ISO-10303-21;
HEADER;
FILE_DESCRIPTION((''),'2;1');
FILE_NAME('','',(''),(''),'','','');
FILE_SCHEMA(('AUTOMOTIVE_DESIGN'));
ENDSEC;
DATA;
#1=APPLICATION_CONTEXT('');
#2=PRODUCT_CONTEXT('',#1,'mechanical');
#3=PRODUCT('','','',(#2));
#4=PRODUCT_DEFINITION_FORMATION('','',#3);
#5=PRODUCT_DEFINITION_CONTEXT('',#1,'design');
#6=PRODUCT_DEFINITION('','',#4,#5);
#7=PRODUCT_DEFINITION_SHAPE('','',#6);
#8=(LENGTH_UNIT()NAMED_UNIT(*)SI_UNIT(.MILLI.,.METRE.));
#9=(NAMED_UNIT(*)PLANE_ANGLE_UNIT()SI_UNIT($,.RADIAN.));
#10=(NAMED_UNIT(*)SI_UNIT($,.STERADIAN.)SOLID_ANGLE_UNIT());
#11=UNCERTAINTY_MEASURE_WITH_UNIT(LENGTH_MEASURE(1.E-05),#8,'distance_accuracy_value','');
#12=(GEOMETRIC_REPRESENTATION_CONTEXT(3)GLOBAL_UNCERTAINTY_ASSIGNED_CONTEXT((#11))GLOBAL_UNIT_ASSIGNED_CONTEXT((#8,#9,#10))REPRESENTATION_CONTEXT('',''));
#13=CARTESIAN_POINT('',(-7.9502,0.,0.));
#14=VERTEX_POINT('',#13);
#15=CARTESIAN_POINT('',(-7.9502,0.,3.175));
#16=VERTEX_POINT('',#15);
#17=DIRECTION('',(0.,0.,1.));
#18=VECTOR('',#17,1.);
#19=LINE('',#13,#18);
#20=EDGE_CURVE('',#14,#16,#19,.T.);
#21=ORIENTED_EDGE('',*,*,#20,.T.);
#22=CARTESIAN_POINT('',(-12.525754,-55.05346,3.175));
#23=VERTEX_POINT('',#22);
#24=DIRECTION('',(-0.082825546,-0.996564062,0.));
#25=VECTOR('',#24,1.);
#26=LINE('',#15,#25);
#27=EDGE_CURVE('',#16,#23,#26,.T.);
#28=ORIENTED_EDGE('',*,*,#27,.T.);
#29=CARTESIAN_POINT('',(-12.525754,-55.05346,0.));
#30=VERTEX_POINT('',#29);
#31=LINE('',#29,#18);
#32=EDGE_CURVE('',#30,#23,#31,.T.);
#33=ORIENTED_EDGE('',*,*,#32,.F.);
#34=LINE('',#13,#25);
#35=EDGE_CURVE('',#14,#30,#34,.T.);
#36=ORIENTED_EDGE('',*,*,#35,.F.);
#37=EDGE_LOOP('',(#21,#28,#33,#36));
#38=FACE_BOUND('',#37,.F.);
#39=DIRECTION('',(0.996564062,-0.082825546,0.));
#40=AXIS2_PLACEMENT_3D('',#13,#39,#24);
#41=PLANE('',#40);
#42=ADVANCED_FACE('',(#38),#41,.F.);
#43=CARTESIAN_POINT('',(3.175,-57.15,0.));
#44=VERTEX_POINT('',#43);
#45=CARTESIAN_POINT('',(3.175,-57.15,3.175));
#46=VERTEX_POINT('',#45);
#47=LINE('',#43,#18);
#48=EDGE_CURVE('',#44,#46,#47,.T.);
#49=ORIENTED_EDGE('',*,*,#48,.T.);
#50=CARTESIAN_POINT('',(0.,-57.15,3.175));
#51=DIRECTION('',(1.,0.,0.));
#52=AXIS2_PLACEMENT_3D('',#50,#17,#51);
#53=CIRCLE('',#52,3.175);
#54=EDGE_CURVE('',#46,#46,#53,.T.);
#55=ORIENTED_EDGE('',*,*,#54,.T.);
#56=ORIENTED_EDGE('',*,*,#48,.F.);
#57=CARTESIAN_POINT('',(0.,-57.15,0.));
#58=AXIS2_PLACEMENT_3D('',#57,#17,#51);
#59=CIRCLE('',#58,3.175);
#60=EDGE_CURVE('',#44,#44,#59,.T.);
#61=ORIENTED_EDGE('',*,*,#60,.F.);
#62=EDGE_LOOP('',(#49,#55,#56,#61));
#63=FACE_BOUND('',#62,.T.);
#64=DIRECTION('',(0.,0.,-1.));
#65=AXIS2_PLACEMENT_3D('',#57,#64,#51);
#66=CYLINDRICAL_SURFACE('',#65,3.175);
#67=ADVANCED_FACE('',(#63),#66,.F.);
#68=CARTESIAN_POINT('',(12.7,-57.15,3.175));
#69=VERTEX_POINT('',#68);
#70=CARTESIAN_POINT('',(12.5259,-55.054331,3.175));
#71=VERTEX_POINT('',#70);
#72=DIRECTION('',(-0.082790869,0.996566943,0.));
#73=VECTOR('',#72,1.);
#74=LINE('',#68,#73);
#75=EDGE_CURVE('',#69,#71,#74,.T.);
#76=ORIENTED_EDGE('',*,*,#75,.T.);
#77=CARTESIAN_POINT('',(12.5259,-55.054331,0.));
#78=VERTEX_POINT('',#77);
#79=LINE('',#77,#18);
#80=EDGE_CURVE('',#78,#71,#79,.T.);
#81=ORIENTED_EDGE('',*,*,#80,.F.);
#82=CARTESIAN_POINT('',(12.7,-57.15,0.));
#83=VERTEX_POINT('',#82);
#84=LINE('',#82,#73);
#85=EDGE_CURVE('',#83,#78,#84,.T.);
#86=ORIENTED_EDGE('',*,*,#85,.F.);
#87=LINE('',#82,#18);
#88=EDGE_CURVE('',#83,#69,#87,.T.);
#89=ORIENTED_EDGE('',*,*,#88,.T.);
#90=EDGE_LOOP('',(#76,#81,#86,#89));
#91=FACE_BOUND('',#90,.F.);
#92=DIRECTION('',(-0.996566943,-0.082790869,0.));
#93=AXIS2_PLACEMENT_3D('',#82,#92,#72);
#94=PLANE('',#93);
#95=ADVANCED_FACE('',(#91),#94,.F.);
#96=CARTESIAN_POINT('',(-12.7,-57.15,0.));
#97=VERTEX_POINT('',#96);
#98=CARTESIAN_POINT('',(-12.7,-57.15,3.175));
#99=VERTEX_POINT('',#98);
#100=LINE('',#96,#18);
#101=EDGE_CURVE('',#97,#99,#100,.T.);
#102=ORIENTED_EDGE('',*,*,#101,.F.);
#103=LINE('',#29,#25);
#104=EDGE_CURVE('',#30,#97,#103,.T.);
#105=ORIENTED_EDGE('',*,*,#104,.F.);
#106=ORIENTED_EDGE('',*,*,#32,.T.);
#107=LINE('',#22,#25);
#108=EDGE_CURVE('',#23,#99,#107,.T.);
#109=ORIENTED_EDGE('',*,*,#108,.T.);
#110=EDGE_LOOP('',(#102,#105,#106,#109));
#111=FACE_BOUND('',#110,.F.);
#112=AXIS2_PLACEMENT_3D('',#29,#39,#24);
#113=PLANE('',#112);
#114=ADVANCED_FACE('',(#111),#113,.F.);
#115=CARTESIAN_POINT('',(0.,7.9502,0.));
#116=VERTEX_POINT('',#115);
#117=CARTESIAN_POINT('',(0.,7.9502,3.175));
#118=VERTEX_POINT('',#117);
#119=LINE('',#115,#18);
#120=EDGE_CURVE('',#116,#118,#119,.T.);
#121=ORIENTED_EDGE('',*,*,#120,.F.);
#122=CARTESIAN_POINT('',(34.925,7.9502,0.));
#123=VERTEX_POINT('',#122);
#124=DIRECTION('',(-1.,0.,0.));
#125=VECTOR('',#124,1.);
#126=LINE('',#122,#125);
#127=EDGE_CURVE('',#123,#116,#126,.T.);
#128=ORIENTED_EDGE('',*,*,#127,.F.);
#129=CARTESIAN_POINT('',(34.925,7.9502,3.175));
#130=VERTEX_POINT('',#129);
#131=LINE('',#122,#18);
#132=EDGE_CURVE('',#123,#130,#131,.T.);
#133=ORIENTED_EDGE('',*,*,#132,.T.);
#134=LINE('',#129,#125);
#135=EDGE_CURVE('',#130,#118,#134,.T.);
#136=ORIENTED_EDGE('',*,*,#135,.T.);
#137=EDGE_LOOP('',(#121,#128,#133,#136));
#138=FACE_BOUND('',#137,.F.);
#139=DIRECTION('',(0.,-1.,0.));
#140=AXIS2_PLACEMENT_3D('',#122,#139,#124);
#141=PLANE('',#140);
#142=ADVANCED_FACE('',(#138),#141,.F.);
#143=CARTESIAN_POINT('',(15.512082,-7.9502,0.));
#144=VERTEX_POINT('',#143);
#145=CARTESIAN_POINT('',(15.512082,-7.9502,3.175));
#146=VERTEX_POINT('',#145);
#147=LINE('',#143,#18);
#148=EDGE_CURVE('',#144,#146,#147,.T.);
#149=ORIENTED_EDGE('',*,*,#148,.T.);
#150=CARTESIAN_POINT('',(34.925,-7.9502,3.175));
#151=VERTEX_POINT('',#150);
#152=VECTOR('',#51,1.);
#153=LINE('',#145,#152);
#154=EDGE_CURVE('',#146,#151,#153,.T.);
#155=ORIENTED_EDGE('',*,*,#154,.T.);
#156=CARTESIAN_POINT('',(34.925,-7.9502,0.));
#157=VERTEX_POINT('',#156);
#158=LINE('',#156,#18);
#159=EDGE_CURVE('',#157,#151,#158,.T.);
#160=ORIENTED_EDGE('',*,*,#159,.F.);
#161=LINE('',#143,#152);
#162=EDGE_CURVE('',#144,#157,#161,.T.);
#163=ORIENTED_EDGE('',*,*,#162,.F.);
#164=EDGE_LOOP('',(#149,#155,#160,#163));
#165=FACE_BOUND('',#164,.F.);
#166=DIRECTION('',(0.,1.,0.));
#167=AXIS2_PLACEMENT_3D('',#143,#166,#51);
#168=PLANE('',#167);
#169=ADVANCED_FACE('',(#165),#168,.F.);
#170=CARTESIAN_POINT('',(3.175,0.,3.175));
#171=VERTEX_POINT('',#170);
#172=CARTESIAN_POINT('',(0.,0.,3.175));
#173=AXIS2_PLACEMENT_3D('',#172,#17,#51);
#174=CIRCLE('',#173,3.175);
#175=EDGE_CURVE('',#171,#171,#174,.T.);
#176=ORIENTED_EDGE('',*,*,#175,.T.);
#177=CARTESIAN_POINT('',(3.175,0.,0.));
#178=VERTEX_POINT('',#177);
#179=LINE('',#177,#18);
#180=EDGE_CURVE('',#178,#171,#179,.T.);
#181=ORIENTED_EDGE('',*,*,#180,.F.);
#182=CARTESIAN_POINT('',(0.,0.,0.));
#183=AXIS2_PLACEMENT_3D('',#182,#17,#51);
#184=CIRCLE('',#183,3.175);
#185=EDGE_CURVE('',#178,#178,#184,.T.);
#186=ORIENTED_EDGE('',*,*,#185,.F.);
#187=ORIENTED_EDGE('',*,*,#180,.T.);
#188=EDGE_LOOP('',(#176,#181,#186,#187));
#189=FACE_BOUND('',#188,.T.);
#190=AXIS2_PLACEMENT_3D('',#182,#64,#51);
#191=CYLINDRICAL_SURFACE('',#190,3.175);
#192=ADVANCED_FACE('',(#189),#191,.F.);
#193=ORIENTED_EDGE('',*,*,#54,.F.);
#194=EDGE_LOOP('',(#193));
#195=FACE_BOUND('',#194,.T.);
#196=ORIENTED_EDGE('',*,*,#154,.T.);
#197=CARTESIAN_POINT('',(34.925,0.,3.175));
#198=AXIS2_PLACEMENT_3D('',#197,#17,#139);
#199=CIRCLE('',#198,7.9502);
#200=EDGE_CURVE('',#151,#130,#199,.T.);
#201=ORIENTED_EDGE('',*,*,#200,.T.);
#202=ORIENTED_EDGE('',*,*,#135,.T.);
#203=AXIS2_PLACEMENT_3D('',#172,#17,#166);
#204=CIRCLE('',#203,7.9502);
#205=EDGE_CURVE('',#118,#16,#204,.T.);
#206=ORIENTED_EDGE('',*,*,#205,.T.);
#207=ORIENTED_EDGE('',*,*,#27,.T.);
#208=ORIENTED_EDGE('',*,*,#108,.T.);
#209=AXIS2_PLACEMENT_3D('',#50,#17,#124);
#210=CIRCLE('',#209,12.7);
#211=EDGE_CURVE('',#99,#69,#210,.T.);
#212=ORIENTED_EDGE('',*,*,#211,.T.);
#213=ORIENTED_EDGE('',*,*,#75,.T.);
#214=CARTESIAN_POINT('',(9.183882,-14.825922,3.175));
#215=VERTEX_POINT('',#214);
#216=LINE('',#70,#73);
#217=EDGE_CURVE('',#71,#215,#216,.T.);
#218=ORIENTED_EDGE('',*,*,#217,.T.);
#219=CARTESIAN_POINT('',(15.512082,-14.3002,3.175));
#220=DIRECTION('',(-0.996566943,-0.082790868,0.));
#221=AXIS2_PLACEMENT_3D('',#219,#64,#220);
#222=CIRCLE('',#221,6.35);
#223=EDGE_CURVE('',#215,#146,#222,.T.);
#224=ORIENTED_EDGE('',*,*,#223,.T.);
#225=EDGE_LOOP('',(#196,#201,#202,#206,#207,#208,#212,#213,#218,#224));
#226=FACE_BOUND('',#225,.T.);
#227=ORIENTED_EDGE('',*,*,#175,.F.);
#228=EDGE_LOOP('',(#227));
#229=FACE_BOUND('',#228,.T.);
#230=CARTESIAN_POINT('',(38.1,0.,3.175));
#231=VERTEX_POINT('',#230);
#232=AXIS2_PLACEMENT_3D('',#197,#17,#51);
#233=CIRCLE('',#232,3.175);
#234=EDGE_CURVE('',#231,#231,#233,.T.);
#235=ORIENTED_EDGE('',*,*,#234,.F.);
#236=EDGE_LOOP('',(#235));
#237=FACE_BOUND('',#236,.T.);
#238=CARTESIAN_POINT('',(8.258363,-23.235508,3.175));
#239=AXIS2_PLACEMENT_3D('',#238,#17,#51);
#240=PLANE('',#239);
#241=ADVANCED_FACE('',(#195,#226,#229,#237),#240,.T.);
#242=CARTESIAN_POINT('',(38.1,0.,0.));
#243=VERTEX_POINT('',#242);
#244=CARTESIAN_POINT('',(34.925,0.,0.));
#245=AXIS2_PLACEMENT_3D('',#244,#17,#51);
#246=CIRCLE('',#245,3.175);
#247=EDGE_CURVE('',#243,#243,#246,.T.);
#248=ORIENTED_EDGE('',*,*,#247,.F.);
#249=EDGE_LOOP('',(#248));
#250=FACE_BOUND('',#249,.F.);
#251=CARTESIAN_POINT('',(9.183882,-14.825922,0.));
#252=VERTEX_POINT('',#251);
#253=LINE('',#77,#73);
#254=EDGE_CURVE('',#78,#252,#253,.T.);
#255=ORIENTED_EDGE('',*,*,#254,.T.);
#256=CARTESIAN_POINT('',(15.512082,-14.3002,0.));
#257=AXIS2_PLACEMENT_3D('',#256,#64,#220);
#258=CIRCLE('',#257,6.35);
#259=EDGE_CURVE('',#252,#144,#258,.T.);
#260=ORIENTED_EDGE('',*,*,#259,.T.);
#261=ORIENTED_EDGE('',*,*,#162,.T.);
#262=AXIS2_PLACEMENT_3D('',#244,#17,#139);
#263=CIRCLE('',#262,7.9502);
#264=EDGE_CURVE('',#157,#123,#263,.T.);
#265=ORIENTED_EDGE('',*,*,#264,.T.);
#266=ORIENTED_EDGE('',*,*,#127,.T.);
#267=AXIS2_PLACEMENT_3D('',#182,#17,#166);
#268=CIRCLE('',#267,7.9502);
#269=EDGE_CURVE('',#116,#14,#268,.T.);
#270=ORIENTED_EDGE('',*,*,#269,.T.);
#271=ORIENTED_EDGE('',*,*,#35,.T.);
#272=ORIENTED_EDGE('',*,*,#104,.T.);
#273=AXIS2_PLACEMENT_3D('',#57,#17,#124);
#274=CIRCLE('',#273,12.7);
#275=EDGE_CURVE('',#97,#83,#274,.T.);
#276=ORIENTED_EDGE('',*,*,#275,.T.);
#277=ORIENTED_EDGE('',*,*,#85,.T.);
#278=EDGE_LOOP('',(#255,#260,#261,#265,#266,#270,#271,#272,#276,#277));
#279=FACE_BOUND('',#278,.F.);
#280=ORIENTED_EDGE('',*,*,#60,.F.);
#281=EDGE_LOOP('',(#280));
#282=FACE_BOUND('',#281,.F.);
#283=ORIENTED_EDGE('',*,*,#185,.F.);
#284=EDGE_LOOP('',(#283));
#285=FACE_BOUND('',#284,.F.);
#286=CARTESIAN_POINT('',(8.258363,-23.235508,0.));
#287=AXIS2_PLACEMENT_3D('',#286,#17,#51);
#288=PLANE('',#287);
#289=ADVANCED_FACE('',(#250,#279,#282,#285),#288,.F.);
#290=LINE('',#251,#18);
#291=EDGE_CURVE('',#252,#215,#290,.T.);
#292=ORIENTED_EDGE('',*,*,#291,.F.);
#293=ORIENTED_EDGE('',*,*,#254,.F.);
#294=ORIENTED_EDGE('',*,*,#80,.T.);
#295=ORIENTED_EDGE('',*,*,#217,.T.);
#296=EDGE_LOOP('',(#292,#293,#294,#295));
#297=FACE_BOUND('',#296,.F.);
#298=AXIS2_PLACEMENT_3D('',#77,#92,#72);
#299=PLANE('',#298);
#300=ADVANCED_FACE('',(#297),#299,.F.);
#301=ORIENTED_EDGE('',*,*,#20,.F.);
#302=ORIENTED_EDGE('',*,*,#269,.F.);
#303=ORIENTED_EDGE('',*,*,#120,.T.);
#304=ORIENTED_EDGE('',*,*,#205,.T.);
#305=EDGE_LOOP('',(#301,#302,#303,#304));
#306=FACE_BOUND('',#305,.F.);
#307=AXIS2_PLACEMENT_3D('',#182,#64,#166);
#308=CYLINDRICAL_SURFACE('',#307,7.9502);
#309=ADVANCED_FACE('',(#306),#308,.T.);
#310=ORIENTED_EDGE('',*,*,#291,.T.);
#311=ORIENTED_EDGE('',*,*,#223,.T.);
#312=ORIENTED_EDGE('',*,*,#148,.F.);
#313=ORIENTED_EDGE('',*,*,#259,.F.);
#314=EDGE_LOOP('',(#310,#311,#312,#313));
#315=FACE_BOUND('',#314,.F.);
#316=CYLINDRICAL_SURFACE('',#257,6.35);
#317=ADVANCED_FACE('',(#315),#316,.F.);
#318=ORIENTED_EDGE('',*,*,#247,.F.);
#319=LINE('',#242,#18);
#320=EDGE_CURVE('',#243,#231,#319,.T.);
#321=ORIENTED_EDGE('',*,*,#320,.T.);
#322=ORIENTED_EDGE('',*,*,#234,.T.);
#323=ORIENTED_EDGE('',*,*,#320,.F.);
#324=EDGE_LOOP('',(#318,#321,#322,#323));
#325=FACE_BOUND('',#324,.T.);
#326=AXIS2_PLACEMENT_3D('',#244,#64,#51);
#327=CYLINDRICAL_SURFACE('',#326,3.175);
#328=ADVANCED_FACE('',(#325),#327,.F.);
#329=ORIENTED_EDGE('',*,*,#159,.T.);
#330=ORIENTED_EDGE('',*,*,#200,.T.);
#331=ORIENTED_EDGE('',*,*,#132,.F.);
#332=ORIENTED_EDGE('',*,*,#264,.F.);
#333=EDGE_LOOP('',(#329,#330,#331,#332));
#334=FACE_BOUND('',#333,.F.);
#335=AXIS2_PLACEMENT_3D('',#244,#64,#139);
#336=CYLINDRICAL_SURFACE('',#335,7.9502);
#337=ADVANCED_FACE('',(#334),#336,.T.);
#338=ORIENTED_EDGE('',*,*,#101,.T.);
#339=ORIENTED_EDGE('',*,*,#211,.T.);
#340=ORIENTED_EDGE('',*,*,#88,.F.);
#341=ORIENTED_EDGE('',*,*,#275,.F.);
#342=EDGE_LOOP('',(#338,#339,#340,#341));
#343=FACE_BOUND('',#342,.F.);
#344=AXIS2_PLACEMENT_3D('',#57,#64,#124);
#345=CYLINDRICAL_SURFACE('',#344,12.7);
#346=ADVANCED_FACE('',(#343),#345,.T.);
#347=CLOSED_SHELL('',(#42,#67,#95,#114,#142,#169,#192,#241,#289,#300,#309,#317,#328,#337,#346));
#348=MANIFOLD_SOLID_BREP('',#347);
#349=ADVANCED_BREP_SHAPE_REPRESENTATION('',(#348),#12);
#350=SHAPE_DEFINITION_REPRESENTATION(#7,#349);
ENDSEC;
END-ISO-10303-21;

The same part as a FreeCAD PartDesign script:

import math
import FreeCAD as App
import Part
import Sketcher
Q = App.Units.Quantity

doc = App.newDocument("Part")
params = doc.addObject("Spreadsheet::Sheet", "Params")
for row, (alias, value) in enumerate([
    ("sketch1_radius", "0.5 in"),
    ("sketch1_diameter", "0.25 in"),
    ("sketch1_radius2", "0.25 in"),
    ("sketch1_radius3", "0.313 in"),
    ("sketch1_width", "1.375 in"),
    ("pad1_length", "0.125 in"),
], start=1):
    params.set(f"A{row}", alias)
    params.set(f"B{row}", "=" + value)
    params.setAlias(f"B{row}", alias)

body = doc.addObject("PartDesign::Body", "Body")

sketch1 = body.newObject("Sketcher::SketchObject", "Sketch")
sketch1.AttachmentSupport = (doc.getObject("XY_Plane"), [""])
sketch1.MapMode = "FlatFace"
sketch1.addGeometry(Part.ArcOfCircle(Part.Circle(App.Vector(0, 0, 0), App.Vector(0, 0, 1), 8), math.radians(90), math.radians(180)), False)
sketch1.addGeometry(Part.LineSegment(App.Vector(-8, 0, 0), App.Vector(-12.5, -55.1, 0)), False)
sketch1.addGeometry(Part.LineSegment(App.Vector(-12.5, -55.1, 0), App.Vector(-12.7, -57.1, 0)), False)
sketch1.addGeometry(Part.ArcOfCircle(Part.Circle(App.Vector(0, -57.1, 0), App.Vector(0, 0, 1), 12.7), math.radians(180), math.radians(360)), False)
sketch1.addGeometry(Part.LineSegment(App.Vector(12.7, -57.1, 0), App.Vector(12.5, -55.1, 0)), False)
sketch1.addGeometry(Part.LineSegment(App.Vector(12.5, -55.1, 0), App.Vector(9.2, -14.8, 0)), False)
sketch1.addGeometry(Part.ArcOfCircle(Part.Circle(App.Vector(15.5, -14.3, 0), App.Vector(0, 0, 1), 6.4), math.radians(90), math.radians(185)), False)
sketch1.addGeometry(Part.LineSegment(App.Vector(15.5, -8, 0), App.Vector(34.9, -8, 0)), False)
sketch1.addGeometry(Part.ArcOfCircle(Part.Circle(App.Vector(34.9, 0, 0), App.Vector(0, 0, 1), 8), math.radians(-90), math.radians(90)), False)
sketch1.addGeometry(Part.LineSegment(App.Vector(34.9, 8, 0), App.Vector(0, 8, 0)), False)
sketch1.addGeometry(Part.Circle(App.Vector(0, -57.1, 0), App.Vector(0, 0, 1), 3.2), False)
sketch1.addGeometry(Part.Circle(App.Vector(0, 0, 0), App.Vector(0, 0, 1), 3.2), False)
sketch1.addGeometry(Part.Circle(App.Vector(34.9, 0, 0), App.Vector(0, 0, 1), 3.2), False)
sketch1.addConstraint(Sketcher.Constraint("Coincident", 0, 2, 1, 1))
sketch1.addConstraint(Sketcher.Constraint("Coincident", 1, 2, 2, 1))
sketch1.addConstraint(Sketcher.Constraint("Coincident", 2, 2, 3, 1))
sketch1.addConstraint(Sketcher.Constraint("Coincident", 3, 2, 4, 1))
sketch1.addConstraint(Sketcher.Constraint("Coincident", 4, 2, 5, 1))
sketch1.addConstraint(Sketcher.Constraint("Tangent", 5, 2, 6, 2))
sketch1.addConstraint(Sketcher.Constraint("Tangent", 6, 1, 7, 1))
sketch1.addConstraint(Sketcher.Constraint("Tangent", 7, 2, 8, 1))
sketch1.addConstraint(Sketcher.Constraint("Tangent", 8, 2, 9, 1))
sketch1.addConstraint(Sketcher.Constraint("Tangent", 9, 2, 0, 1))
sketch1.addConstraint(Sketcher.Constraint("Horizontal", 7))
sketch1.addConstraint(Sketcher.Constraint("Horizontal", 9))
sketch1.addConstraint(Sketcher.Constraint("Coincident", 0, 3, -1, 1))
sketch1.addConstraint(Sketcher.Constraint("Coincident", 11, 3, -1, 1))
sketch1.addConstraint(Sketcher.Constraint("Coincident", 10, 3, 3, 3))
sketch1.addConstraint(Sketcher.Constraint("Coincident", 12, 3, 8, 3))
sketch1.addConstraint(Sketcher.Constraint("Equal", 0, 8))
sketch1.addConstraint(Sketcher.Constraint("Equal", 10, 11))
sketch1.addConstraint(Sketcher.Constraint("Equal", 11, 12))
sketch1.addConstraint(Sketcher.Constraint("Symmetric", 2, 2, 3, 2, -2))
sketch1.addConstraint(Sketcher.Constraint("PointOnObject", 0, 2, -1))
sketch1.addConstraint(Sketcher.Constraint("Parallel", 1, 2))
sketch1.addConstraint(Sketcher.Constraint("Parallel", 4, 5))
sketch1.addConstraint(Sketcher.Constraint("Horizontal", 10, 3, 2, 2))
sketch1.addConstraint(Sketcher.Constraint("Radius", 3, Q("0.5 in")))
sketch1.addConstraint(Sketcher.Constraint("Diameter", 10, Q("0.25 in")))
sketch1.addConstraint(Sketcher.Constraint("Radius", 6, Q("0.25 in")))
sketch1.addConstraint(Sketcher.Constraint("Radius", 0, Q("0.313 in")))
sketch1.addConstraint(Sketcher.Constraint("DistanceX", 9, 2, 9, 1, Q("1.375 in")))
sketch1.addConstraint(Sketcher.Constraint("DistanceY", 3, 3, -1, 1, Q("2.25 in")))
sketch1.addConstraint(Sketcher.Constraint("DistanceX", 7, 1, 7, 2, 19.412918))
sketch1.addConstraint(Sketcher.Constraint("DistanceX", -1, 1, 4, 2, 12.5259))
sketch1.addConstraint(Sketcher.Constraint("Distance", 2, 2.103769))
sketch1.setExpression("Constraints[24]", "Params.sketch1_radius")
sketch1.setExpression("Constraints[25]", "Params.sketch1_diameter")
sketch1.setExpression("Constraints[26]", "Params.sketch1_radius2")
sketch1.setExpression("Constraints[27]", "Params.sketch1_radius3")
sketch1.setExpression("Constraints[28]", "Params.sketch1_width")
pad1 = body.newObject("PartDesign::Pad", "Pad")
pad1.Profile = sketch1
pad1.setExpression("Length", "Params.pad1_length")

doc.recompute()
